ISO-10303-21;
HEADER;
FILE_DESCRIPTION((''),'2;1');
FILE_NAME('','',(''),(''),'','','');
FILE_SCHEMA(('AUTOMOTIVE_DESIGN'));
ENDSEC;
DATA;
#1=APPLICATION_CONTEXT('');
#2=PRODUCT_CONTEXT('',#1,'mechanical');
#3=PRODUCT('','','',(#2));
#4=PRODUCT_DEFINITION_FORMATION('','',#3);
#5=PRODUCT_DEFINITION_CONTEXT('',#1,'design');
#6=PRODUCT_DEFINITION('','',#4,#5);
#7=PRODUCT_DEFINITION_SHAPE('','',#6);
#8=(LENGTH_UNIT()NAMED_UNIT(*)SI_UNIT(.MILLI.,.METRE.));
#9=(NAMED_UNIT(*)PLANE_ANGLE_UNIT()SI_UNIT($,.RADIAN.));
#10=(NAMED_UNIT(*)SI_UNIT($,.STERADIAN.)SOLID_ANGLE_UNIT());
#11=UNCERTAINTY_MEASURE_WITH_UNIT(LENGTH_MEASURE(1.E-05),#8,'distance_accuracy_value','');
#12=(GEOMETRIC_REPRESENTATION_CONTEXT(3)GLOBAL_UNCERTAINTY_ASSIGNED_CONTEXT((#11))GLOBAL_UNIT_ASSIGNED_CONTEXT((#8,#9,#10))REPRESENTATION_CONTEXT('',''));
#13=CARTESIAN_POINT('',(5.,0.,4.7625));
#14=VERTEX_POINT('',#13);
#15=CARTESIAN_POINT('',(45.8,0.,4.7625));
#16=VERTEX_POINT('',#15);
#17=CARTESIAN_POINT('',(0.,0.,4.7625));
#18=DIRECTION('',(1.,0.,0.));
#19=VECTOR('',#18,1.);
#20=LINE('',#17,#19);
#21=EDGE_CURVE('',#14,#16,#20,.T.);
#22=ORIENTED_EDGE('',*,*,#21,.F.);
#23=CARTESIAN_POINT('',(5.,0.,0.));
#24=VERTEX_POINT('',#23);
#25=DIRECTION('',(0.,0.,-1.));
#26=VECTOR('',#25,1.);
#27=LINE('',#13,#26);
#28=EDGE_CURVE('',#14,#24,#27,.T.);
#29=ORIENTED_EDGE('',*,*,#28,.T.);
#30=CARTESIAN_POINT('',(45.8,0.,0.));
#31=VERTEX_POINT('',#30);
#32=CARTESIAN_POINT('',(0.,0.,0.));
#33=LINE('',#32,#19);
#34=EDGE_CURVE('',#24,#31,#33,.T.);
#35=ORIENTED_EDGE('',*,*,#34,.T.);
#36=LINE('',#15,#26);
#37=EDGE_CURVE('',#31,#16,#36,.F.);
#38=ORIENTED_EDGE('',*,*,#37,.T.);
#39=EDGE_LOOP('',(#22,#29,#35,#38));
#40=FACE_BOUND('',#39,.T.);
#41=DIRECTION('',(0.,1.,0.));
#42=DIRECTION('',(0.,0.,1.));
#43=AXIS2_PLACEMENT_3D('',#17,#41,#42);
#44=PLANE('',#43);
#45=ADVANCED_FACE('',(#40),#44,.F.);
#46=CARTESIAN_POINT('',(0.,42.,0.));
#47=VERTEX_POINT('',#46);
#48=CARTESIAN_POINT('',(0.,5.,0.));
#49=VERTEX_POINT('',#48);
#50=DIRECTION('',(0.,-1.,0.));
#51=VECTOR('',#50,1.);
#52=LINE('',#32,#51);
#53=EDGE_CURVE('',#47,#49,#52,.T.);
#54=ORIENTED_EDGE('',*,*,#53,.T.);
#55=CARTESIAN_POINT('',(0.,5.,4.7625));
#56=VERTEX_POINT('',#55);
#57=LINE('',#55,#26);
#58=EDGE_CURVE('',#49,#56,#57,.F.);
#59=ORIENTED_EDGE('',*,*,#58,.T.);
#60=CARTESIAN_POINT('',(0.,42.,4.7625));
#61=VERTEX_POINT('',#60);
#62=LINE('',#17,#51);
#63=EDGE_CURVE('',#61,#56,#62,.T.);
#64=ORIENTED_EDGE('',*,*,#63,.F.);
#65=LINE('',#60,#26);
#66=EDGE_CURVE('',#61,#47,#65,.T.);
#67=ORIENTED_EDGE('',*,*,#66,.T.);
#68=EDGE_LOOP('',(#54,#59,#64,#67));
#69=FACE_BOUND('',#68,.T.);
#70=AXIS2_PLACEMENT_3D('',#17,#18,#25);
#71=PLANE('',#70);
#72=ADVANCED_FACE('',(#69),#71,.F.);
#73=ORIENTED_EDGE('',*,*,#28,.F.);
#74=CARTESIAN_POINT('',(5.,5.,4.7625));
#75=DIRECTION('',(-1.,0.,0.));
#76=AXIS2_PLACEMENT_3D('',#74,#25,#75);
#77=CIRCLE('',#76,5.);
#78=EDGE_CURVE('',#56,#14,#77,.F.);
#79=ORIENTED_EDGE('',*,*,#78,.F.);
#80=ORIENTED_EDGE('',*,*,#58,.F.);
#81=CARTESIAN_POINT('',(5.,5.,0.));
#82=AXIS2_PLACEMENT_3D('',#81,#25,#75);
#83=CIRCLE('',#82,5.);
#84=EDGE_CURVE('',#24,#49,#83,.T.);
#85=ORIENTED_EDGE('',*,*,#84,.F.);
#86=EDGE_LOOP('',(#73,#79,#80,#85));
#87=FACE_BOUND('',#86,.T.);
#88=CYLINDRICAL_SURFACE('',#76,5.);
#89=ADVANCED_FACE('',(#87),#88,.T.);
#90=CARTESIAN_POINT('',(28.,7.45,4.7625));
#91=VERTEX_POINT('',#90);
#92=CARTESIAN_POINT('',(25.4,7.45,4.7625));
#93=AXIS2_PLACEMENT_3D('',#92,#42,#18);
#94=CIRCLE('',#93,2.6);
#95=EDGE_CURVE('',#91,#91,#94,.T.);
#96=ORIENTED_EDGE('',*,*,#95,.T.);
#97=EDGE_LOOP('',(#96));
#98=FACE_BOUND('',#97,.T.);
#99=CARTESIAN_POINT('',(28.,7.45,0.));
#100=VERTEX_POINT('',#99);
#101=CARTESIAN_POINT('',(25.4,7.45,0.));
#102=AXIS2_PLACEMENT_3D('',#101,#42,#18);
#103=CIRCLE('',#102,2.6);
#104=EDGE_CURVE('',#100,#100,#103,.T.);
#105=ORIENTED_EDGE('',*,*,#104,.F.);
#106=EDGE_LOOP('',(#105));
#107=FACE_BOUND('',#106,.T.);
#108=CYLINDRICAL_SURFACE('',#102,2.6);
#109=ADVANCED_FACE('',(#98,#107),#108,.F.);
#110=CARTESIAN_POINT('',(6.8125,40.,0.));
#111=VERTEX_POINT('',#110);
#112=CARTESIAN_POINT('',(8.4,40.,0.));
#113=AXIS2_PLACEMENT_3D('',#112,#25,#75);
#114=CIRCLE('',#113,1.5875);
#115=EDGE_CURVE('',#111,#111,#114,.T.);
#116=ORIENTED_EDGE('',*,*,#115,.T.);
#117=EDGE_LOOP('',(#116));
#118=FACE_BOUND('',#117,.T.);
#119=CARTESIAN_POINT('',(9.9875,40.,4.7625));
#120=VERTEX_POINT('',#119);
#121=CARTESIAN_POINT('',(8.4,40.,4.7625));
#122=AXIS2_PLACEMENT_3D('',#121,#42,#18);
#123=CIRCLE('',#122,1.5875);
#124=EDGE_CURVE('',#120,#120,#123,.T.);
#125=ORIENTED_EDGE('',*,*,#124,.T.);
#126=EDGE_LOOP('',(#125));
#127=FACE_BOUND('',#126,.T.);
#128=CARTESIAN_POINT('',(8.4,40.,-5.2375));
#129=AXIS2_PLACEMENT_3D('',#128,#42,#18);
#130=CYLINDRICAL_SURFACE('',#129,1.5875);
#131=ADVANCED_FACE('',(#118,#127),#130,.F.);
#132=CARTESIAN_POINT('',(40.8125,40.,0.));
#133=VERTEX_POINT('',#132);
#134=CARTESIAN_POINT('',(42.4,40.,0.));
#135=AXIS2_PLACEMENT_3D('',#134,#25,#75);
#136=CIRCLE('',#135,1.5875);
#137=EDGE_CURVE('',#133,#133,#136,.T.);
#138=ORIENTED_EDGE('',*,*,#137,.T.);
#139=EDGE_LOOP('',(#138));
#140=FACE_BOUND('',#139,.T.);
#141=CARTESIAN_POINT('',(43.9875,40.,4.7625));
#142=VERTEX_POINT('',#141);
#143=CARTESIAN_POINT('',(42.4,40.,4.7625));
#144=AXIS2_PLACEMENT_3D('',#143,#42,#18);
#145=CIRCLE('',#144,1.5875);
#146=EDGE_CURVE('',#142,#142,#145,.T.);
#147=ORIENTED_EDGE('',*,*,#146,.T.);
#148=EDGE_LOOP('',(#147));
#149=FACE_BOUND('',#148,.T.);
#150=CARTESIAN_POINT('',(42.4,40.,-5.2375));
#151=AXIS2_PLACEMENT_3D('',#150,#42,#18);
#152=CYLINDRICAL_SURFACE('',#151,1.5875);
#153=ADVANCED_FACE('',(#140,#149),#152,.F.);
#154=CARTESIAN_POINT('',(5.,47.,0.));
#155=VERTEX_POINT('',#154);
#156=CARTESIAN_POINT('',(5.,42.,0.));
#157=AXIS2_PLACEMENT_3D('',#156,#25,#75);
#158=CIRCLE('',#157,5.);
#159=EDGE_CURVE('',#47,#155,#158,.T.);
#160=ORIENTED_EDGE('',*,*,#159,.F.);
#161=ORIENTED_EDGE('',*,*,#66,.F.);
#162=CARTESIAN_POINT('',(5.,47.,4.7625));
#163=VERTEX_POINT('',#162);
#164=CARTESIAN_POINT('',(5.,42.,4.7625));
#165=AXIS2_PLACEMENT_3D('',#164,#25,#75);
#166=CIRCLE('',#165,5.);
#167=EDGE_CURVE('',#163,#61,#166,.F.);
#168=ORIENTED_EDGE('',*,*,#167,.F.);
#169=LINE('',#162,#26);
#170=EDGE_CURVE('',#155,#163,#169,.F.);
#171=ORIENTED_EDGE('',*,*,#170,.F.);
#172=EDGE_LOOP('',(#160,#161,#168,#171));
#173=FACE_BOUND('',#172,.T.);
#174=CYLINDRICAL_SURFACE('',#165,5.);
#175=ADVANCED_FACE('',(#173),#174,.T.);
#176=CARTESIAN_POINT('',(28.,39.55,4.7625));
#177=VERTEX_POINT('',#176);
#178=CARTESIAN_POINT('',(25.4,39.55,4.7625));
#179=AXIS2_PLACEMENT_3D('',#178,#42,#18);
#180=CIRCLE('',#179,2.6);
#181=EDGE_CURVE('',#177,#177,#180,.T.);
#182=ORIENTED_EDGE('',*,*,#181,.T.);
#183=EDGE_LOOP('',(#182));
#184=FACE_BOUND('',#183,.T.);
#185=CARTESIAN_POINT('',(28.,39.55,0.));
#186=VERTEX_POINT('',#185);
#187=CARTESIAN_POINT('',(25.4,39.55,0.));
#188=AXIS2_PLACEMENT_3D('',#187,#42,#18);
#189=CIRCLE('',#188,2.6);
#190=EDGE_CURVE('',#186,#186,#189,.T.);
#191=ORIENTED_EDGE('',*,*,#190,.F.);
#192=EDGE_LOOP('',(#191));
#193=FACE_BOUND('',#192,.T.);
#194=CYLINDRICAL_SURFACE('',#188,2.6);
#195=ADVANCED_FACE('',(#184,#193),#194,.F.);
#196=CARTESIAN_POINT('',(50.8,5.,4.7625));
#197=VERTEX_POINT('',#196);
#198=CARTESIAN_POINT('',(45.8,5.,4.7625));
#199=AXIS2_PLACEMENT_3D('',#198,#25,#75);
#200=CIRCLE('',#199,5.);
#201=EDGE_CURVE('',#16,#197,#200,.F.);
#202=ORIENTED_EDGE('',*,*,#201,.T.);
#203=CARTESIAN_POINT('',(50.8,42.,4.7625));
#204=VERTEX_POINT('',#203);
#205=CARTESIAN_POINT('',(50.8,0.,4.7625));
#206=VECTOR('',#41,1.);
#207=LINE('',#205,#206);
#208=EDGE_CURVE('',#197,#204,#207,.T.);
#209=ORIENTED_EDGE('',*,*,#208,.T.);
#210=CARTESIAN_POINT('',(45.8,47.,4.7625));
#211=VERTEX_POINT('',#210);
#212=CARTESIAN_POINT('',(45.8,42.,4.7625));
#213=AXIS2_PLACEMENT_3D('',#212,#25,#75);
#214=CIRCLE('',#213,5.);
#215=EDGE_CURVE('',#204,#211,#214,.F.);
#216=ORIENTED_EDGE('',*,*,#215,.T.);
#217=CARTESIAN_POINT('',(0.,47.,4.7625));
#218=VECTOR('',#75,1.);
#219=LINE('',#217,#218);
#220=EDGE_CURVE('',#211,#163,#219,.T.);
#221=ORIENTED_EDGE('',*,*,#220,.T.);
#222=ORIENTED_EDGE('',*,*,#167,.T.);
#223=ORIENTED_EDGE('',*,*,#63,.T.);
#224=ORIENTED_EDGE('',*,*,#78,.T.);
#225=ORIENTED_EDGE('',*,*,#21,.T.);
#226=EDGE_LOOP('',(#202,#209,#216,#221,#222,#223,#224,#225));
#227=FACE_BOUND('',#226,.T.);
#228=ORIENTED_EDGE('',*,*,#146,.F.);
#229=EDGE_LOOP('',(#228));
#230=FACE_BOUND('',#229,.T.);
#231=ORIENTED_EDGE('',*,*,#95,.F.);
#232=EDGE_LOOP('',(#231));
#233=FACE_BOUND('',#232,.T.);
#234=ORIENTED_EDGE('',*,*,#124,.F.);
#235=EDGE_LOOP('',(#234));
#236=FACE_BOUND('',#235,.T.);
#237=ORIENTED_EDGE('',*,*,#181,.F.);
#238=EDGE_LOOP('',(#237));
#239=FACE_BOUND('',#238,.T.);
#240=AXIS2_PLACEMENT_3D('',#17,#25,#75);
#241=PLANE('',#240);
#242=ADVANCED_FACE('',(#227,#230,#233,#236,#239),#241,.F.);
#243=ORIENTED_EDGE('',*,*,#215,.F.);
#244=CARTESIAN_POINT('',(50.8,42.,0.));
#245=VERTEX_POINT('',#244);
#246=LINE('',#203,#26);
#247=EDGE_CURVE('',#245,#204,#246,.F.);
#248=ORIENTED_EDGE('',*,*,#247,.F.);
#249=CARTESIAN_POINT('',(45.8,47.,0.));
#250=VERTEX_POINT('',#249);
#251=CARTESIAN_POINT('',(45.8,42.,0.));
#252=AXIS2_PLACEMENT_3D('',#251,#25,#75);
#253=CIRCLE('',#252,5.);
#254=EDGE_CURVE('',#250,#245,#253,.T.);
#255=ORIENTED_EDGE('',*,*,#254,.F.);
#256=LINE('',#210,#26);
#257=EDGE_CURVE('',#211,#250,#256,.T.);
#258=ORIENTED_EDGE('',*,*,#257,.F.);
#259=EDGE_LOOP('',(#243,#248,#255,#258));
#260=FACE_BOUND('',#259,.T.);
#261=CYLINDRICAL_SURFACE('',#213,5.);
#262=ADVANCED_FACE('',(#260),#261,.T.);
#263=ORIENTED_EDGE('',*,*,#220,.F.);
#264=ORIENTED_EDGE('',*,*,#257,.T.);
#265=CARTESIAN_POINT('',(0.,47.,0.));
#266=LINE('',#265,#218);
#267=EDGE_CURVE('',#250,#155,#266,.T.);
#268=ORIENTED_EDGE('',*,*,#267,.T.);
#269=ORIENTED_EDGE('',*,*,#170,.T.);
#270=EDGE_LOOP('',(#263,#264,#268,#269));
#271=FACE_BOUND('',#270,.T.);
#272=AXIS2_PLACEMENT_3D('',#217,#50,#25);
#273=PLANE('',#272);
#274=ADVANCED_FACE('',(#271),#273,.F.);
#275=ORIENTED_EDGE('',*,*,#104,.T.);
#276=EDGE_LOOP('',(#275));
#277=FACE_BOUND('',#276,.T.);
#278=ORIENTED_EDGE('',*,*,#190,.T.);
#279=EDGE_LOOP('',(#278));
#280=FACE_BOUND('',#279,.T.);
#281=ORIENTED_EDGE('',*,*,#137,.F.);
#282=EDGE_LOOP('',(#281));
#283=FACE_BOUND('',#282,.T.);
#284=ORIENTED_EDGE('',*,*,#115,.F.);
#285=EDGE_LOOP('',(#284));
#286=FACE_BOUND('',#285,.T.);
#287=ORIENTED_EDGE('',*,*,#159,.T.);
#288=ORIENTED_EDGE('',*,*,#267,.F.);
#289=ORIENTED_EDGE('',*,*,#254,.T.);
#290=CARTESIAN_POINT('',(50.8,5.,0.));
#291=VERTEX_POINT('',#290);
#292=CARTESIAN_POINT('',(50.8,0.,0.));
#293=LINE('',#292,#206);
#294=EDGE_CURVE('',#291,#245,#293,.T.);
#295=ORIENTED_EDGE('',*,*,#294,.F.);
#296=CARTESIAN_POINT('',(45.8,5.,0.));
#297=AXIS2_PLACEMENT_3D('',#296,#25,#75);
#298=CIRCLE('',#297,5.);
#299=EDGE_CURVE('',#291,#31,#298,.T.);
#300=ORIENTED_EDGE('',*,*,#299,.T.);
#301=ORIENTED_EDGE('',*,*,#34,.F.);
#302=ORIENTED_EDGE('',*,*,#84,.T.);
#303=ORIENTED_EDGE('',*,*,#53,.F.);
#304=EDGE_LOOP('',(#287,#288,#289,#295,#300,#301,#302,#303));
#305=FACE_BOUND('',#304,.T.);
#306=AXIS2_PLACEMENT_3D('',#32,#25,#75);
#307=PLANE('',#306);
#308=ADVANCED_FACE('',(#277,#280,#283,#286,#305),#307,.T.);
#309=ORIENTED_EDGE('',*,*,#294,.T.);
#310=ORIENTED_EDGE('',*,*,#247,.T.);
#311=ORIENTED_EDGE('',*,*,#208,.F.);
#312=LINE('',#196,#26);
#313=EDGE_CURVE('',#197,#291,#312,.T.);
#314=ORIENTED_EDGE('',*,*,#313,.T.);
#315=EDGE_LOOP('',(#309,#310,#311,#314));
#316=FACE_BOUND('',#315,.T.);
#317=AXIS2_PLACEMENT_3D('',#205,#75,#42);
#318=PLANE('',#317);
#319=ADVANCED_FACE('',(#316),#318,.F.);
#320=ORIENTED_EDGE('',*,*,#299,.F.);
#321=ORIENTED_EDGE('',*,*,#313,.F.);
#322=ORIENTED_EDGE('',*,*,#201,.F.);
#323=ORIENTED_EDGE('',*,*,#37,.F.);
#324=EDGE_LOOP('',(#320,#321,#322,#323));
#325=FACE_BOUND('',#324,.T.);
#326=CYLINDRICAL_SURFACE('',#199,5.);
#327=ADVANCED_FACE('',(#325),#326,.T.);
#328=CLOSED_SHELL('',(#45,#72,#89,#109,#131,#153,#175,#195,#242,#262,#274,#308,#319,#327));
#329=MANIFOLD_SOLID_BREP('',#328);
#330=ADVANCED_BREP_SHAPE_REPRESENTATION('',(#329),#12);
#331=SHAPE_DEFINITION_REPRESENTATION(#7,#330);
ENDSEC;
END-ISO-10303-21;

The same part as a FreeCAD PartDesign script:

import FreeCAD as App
import Part
import Sketcher


def edges_at(feature, points):
    """Names of the edges that pass closest to the given points."""
    edges = feature.Shape.Edges
    near = lambda p: min(range(len(edges)), key=lambda i: edges[i].distToShape(Part.Vertex(*p))[0])
    return sorted({f"Edge{near(p) + 1}" for p in points})

doc = App.newDocument("Part")
params = doc.addObject("Spreadsheet::Sheet", "Params")
for row, (alias, value) in enumerate([
    ("sketch1_height", "47 mm"),
    ("sketch1_width", "50.8 mm"),
    ("pad1_length", "4.7625 mm"),
    ("sketch2_diameter", "5.2 mm"),
    ("fillet_radius", "5 mm"),
    ("pocket2_length", "10 mm"),
], start=1):
    params.set(f"A{row}", alias)
    params.set(f"B{row}", "=" + value)
    params.setAlias(f"B{row}", alias)

body = doc.addObject("PartDesign::Body", "Body")

# Sketch on XY plane
sketch1 = body.newObject("Sketcher::SketchObject", "Sketch")
sketch1.AttachmentSupport = (doc.getObject("XY_Plane"), [""])
sketch1.MapMode = "FlatFace"
sketch1.addGeometry([
    Part.LineSegment(App.Vector(0, 47, 0), App.Vector(0, 0, 0)),
    Part.LineSegment(App.Vector(0, 0, 0), App.Vector(51, 0, 0)),
    Part.LineSegment(App.Vector(51, 0, 0), App.Vector(51, 47, 0)),
    Part.LineSegment(App.Vector(51, 47, 0), App.Vector(0, 47, 0)),
], False)
sketch1.addConstraint([
    Sketcher.Constraint("Coincident", 0, 2, 1, 1),
    Sketcher.Constraint("Coincident", 1, 2, 2, 1),
    Sketcher.Constraint("Coincident", 2, 2, 3, 1),
    Sketcher.Constraint("Coincident", 3, 2, 0, 1),
    Sketcher.Constraint("Vertical", 0),
    Sketcher.Constraint("Horizontal", 1),
    Sketcher.Constraint("Vertical", 2),
    Sketcher.Constraint("Horizontal", 3),
    Sketcher.Constraint("Coincident", 0, 2, -1, 1),
    Sketcher.Constraint("DistanceY", 0, 2, 0, 1, 47.0),
    Sketcher.Constraint("DistanceX", 1, 1, 1, 2, 50.8),
])
sketch1.setExpression("Constraints[9]", "Params.sketch1_height")
sketch1.setExpression("Constraints[10]", "Params.sketch1_width")
pad1 = body.newObject("PartDesign::Pad", "Pad")
pad1.Profile = sketch1
pad1.setExpression("Length", "Params.pad1_length")

# Sketch on XY plane
sketch2 = body.newObject("Sketcher::SketchObject", "Sketch001")
sketch2.AttachmentSupport = (doc.getObject("XY_Plane"), [""])
sketch2.MapMode = "FlatFace"
sketch2.AttachmentOffset = App.Placement(App.Vector(0, 0, 4.7625), App.Rotation())
sketch2.addGeometry([
    Part.Circle(App.Vector(25.4, 39.5, 0), App.Vector(0, 0, 1), 2.6),
    Part.Circle(App.Vector(25.4, 7.5, 0), App.Vector(0, 0, 1), 2.6),
], False)
sketch2.addConstraint([
    Sketcher.Constraint("Equal", 0, 1),
    Sketcher.Constraint("Vertical", 0, 3, 1, 3),
    Sketcher.Constraint("Diameter", 0, 5.2),
    Sketcher.Constraint("DistanceX", -1, 1, 0, 3, 25.4),
    Sketcher.Constraint("DistanceY", 1, 3, 0, 3, 32.1),
    Sketcher.Constraint("DistanceY", -1, 1, 0, 3, 39.55),
])
sketch2.setExpression("Constraints[2]", "Params.sketch2_diameter")
pocket1 = body.newObject("PartDesign::Pocket", "Pocket")
pocket1.Profile = sketch2
pocket1.Type = "ThroughAll"
doc.recompute()

fillet = body.newObject("PartDesign::Fillet", "Fillet")
fillet.Base = (pocket1, edges_at(pocket1, [
    (0, 47, 2.381),
    (50.8, 47, 2.381),
    (50.8, 0, 2.381),
    (0, 0, 2.381),
]))
fillet.setExpression("Radius", "Params.fillet_radius")

# Sketch on XY plane
sketch3 = body.newObject("Sketcher::SketchObject", "Sketch002")
sketch3.AttachmentSupport = (doc.getObject("XY_Plane"), [""])
sketch3.MapMode = "FlatFace"
sketch3.AttachmentOffset = App.Placement(App.Vector(0, 0, 4.7625), App.Rotation())
sketch3.addGeometry([
    Part.Circle(App.Vector(8.4, 40, 0), App.Vector(0, 0, 1), 1.6),
    Part.Circle(App.Vector(42.4, 40, 0), App.Vector(0, 0, 1), 1.6),
], False)
sketch3.addConstraint([
    Sketcher.Constraint("Equal", 0, 1),
    Sketcher.Constraint("Horizontal", 0, 3, 1, 3),
    Sketcher.Constraint("Diameter", 0, 3.175),
    Sketcher.Constraint("DistanceY", -1, 1, 0, 3, 40.0),
    Sketcher.Constraint("DistanceX", 0, 3, 1, 3, 34.0),
    Sketcher.Constraint("DistanceX", -1, 1, 0, 3, 8.4),
])
pocket2 = body.newObject("PartDesign::Pocket", "Pocket001")
pocket2.Profile = sketch3
pocket2.setExpression("Length", "Params.pocket2_length")

doc.recompute()
